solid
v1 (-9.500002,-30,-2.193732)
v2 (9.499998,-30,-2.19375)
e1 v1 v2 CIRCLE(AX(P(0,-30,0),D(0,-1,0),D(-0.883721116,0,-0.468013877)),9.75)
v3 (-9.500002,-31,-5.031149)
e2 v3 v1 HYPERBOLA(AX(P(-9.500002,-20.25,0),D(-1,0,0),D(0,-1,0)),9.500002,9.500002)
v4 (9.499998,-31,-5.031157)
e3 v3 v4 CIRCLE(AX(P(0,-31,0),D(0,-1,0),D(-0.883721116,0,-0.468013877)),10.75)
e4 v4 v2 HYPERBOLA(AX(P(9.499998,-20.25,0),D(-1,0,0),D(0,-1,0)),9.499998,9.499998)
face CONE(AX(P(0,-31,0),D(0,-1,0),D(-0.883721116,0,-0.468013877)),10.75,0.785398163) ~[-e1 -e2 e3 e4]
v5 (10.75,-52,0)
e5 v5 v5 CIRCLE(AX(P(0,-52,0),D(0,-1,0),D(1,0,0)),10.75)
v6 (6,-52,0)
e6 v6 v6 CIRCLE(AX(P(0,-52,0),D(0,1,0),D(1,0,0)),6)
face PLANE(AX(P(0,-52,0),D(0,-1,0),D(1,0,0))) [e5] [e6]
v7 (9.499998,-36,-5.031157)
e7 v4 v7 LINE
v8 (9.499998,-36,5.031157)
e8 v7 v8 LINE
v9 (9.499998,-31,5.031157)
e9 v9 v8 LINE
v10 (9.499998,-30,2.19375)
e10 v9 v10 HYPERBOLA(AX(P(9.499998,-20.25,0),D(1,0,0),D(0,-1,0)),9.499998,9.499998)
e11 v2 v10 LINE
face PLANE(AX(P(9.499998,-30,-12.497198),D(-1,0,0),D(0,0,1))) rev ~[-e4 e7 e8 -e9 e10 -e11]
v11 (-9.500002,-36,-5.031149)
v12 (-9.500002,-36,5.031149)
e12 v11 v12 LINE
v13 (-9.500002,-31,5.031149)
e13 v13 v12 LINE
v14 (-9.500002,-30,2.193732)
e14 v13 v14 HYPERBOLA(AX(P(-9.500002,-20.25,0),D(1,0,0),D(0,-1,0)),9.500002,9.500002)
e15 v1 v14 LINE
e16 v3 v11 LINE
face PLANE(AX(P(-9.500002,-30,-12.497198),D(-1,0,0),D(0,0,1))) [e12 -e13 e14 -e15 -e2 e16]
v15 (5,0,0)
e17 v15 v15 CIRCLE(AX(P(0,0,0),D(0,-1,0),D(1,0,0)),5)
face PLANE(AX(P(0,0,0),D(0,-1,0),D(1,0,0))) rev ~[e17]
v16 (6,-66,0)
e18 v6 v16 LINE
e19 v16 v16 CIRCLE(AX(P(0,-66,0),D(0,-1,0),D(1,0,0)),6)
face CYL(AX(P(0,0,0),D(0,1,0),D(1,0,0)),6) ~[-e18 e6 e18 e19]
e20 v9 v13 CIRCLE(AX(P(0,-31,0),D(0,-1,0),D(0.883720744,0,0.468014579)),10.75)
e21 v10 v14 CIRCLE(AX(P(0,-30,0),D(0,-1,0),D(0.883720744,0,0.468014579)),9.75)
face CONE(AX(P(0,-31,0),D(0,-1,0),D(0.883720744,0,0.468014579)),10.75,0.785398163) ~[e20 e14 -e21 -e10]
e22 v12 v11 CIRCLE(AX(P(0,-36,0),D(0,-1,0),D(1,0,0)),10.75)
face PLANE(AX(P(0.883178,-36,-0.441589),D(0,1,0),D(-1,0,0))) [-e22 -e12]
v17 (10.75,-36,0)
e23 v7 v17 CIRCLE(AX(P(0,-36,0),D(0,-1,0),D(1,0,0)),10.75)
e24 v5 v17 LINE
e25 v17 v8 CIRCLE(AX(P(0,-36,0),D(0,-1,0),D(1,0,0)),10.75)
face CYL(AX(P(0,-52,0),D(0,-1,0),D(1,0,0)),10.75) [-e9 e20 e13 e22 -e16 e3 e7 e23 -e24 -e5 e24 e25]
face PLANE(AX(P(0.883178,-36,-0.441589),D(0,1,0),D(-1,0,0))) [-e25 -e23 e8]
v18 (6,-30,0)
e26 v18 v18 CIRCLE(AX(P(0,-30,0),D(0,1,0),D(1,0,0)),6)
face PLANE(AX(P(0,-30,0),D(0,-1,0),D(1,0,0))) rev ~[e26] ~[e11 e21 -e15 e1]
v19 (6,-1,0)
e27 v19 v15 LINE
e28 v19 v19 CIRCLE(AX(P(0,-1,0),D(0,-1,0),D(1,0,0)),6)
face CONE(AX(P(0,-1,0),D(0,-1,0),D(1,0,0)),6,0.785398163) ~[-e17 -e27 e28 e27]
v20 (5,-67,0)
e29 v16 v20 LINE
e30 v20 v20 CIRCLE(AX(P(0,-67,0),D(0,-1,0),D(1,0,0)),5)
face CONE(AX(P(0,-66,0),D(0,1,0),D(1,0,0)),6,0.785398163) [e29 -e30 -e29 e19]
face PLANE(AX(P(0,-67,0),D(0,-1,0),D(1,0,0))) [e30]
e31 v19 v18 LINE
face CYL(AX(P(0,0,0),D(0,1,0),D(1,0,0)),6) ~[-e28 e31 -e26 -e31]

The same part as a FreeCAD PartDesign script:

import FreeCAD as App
import Part
import Sketcher

V = App.Vector


def edges_at(feature, points):
    """Names of the edges that pass closest to the given points."""
    edges = feature.Shape.Edges
    near = lambda p: min(range(len(edges)), key=lambda i: edges[i].distToShape(Part.Vertex(*p))[0])
    return sorted({f"Edge{near(p) + 1}" for p in points})

doc = App.newDocument("Part")
params = doc.addObject("Spreadsheet::Sheet", "Params")
for row, (alias, value) in enumerate([
    ("sketch1_diameter", "12 mm"),
    ("pad1_length", "67 mm"),
    ("sketch2_diameter", "21.5 mm"),
    ("pad2_length", "22 mm"),
    ("sketch3_width", "19 mm"),
    ("pocket1_length", "6 mm"),
    ("chamfer_size", "1 mm"),
], start=1):
    params.set(f"A{row}", alias)
    params.set(f"B{row}", "=" + value)
    params.setAlias(f"B{row}", alias)

body = doc.addObject("PartDesign::Body", "Body")

sketch1 = body.newObject("Sketcher::SketchObject", "Sketch")
sketch1.AttachmentSupport = (doc.getObject("XZ_Plane"), [""])
sketch1.MapMode = "FlatFace"
sketch1.addGeometry(Part.Circle(V(0, 0, 0), V(0, 0, 1), 6), False)
sketch1.addConstraint([
    Sketcher.Constraint("Coincident", 0, 3, -1, 1),
    Sketcher.Constraint("Diameter", 0, 12.0),
])
sketch1.setExpression("Constraints[1]", "Params.sketch1_diameter")
pad1 = body.newObject("PartDesign::Pad", "Pad")
pad1.Profile = sketch1
pad1.setExpression("Length", "Params.pad1_length")

sketch2 = body.newObject("Sketcher::SketchObject", "Sketch001")
sketch2.AttachmentSupport = (doc.getObject("XZ_Plane"), [""])
sketch2.MapMode = "FlatFace"
sketch2.AttachmentOffset = App.Placement(V(0, 0, 52), App.Rotation())
sketch2.addGeometry(Part.Circle(V(0, 0, 0), V(0, 0, 1), 10.75), False)
sketch2.addConstraint([
    Sketcher.Constraint("Coincident", 0, 3, -1, 1),
    Sketcher.Constraint("Diameter", 0, 21.5),
])
sketch2.setExpression("Constraints[1]", "Params.sketch2_diameter")
pad2 = body.newObject("PartDesign::Pad", "Pad001")
pad2.Profile = sketch2
pad2.setExpression("Length", "Params.pad2_length")
pad2.Reversed = True

sketch3 = body.newObject("Sketcher::SketchObject", "Sketch002")
sketch3.AttachmentSupport = (doc.getObject("XZ_Plane"), [""])
sketch3.MapMode = "FlatFace"
sketch3.AttachmentOffset = App.Placement(V(0, 0, 30), App.Rotation())
sketch3.addGeometry([
    Part.LineSegment(V(14.130842, 15.455608, 0), V(14.130842, -16.338786, 0)),
    Part.LineSegment(V(14.130842, -16.338786, 0), V(-12.364486, -16.338786, 0)),
    Part.LineSegment(V(-12.364486, -16.338786, 0), V(-12.364486, 15.455608, 0)),
    Part.LineSegment(V(-12.364486, 15.455608, 0), V(14.130842, 15.455608, 0)),
    Part.LineSegment(V(-9.500002, -12.497198, 0), V(9.499998, -12.497198, 0)),
    Part.LineSegment(V(9.499998, -12.497198, 0), V(9.499998, 12.202806, 0)),
    Part.LineSegment(V(9.499998, 12.202806, 0), V(-9.500002, 12.202806, 0)),
    Part.LineSegment(V(-9.500002, 12.202806, 0), V(-9.500002, -12.497198, 0)),
], False)
sketch3.addConstraint([
    Sketcher.Constraint("Coincident", 0, 2, 1, 1),
    Sketcher.Constraint("Coincident", 1, 2, 2, 1),
    Sketcher.Constraint("Coincident", 2, 2, 3, 1),
    Sketcher.Constraint("Coincident", 3, 2, 0, 1),
    Sketcher.Constraint("Coincident", 4, 2, 5, 1),
    Sketcher.Constraint("Coincident", 5, 2, 6, 1),
    Sketcher.Constraint("Coincident", 6, 2, 7, 1),
    Sketcher.Constraint("Coincident", 7, 2, 4, 1),
    Sketcher.Constraint("Vertical", 0),
    Sketcher.Constraint("Horizontal", 1),
    Sketcher.Constraint("Vertical", 2),
    Sketcher.Constraint("Horizontal", 3),
    Sketcher.Constraint("Horizontal", 4),
    Sketcher.Constraint("Vertical", 5),
    Sketcher.Constraint("Horizontal", 6),
    Sketcher.Constraint("Vertical", 7),
    Sketcher.Constraint("DistanceX", 4, 1, 4, 2, 19.0),
    Sketcher.Constraint("DistanceY", 5, 2, 3, 2, 3.252802),
    Sketcher.Constraint("DistanceX", 1, 2, 1, 1, 26.495327),
    Sketcher.Constraint("DistanceY", 0, 2, 0, 1, 31.794394),
    Sketcher.Constraint("DistanceY", 5, 1, 5, 2, 24.700004),
    Sketcher.Constraint("DistanceX", -1, 1, 0, 2, 14.130842),
    Sketcher.Constraint("DistanceY", 0, 2, -1, 1, 16.338786),
    Sketcher.Constraint("DistanceX", -1, 1, 4, 2, 9.499998),
])
sketch3.setExpression("Constraints[16]", "Params.sketch3_width")
pocket1 = body.newObject("PartDesign::Pocket", "Pocket")
pocket1.Profile = sketch3
pocket1.setExpression("Length", "Params.pocket1_length")
pocket1.Reversed = True
doc.recompute()

chamfer = body.newObject("PartDesign::Chamfer", "Chamfer")
chamfer.Base = (pocket1, edges_at(pocket1, [
    (-6, -67, 0),
    (-6, 0, 0),
    (0, -30, -10.75),
    (0, -30, 10.75),
]))
chamfer.setExpression("Size", "Params.chamfer_size")

doc.recompute()
